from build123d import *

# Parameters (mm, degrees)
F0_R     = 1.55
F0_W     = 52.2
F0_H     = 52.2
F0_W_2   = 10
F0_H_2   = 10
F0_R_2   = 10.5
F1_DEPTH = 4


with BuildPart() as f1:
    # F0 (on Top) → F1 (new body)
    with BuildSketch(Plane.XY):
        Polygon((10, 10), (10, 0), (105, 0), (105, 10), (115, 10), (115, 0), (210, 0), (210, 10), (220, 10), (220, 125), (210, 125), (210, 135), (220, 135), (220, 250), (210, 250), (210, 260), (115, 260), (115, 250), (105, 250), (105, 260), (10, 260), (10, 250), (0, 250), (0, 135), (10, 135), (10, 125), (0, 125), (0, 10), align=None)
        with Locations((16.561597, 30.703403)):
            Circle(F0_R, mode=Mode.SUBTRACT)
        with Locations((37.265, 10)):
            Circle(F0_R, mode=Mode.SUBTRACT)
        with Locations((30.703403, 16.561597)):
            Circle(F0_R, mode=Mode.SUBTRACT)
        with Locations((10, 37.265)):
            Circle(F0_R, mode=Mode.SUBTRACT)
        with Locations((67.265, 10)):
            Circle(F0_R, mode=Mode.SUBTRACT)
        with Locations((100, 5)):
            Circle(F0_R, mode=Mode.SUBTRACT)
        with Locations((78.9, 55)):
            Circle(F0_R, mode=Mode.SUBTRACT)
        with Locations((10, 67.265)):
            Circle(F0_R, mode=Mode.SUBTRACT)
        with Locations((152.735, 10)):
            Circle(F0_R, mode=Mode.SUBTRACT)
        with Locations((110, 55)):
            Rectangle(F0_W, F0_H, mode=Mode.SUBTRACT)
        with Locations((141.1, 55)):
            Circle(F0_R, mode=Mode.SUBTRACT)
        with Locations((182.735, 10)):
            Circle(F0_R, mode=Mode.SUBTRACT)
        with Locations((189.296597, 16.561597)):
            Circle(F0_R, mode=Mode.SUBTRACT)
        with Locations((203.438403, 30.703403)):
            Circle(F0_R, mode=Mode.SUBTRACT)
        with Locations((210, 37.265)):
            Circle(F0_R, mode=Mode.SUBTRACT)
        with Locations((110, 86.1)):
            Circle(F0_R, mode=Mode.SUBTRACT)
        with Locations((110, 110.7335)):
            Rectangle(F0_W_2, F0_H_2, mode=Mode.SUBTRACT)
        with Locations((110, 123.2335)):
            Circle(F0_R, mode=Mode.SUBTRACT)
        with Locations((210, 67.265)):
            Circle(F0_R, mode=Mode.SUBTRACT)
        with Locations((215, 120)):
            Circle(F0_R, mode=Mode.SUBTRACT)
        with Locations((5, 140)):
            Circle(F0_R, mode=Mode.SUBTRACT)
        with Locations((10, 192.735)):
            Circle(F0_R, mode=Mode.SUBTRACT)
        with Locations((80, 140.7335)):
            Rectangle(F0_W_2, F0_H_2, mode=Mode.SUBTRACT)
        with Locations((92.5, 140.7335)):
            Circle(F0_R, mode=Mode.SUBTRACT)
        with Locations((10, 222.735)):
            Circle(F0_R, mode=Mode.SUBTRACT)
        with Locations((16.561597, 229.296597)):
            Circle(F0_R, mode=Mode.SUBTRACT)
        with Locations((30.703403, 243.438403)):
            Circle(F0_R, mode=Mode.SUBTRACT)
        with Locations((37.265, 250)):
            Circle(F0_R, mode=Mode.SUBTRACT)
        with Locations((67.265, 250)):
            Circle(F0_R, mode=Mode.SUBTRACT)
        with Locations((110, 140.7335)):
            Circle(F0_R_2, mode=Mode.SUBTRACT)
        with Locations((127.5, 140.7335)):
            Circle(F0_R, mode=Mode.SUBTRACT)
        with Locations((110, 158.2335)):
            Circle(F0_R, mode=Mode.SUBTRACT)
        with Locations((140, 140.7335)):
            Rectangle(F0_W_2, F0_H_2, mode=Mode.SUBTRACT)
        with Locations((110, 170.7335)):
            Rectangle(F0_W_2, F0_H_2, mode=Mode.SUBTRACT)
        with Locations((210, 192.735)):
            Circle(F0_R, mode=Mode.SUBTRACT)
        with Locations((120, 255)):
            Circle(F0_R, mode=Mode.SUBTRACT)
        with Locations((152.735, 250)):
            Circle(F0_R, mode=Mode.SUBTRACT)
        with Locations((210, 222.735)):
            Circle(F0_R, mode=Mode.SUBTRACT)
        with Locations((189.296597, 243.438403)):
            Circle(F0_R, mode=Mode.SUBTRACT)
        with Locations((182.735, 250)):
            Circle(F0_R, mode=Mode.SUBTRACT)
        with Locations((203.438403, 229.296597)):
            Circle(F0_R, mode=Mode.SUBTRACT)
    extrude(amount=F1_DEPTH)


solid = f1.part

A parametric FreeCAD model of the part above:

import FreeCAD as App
import Part
import Sketcher


def add_polygon(sketch, points):
    """Adds a closed chain of lines whose ends are joined by coincident constraints."""
    first, n = sketch.GeometryCount, len(points)
    for a, b in zip(points, points[1:] + points[:1]):
        sketch.addGeometry(Part.LineSegment(App.Vector(*a, 0), App.Vector(*b, 0)), False)
    for i in range(n):
        sketch.addConstraint(Sketcher.Constraint("Coincident", first + i, 2, first + (i + 1) % n, 1))

doc = App.newDocument("Part")
body = doc.addObject("PartDesign::Body", "Body")

# Sketch on XY plane
sketch1 = body.newObject("Sketcher::SketchObject", "Sketch")
sketch1.AttachmentSupport = (doc.getObject("XY_Plane"), [""])
sketch1.MapMode = "FlatFace"
add_polygon(sketch1, [(10, 10), (10, 0), (105, 0), (105, 10), (115, 10), (115, 0), (210, 0), (210, 10), (220, 10), (220, 125), (210, 125), (210, 135), (220, 135), (220, 250), (210, 250), (210, 260), (115, 260), (115, 250), (105, 250), (105, 260), (10, 260), (10, 250), (0, 250), (0, 135), (10, 135), (10, 125), (0, 125), (0, 10)])  # lines 0-27
sketch1.addGeometry(Part.Circle(App.Vector(16.6, 30.7, 0), App.Vector(0, 0, 1), 1.6), False)  # 28
sketch1.addGeometry(Part.Circle(App.Vector(37.3, 10, 0), App.Vector(0, 0, 1), 1.6), False)  # 29
sketch1.addGeometry(Part.Circle(App.Vector(30.7, 16.6, 0), App.Vector(0, 0, 1), 1.6), False)  # 30
sketch1.addGeometry(Part.Circle(App.Vector(10, 37.3, 0), App.Vector(0, 0, 1), 1.6), False)  # 31
sketch1.addGeometry(Part.Circle(App.Vector(67.3, 10, 0), App.Vector(0, 0, 1), 1.6), False)  # 32
sketch1.addGeometry(Part.Circle(App.Vector(100, 5, 0), App.Vector(0, 0, 1), 1.6), False)  # 33
sketch1.addGeometry(Part.Circle(App.Vector(78.9, 55, 0), App.Vector(0, 0, 1), 1.6), False)  # 34
sketch1.addGeometry(Part.Circle(App.Vector(10, 67.3, 0), App.Vector(0, 0, 1), 1.6), False)  # 35
sketch1.addGeometry(Part.Circle(App.Vector(152.7, 10, 0), App.Vector(0, 0, 1), 1.6), False)  # 36
add_polygon(sketch1, [(136.1, 28.9), (83.9, 28.9), (83.9, 81.1), (136.1, 81.1)])  # lines 37-40
sketch1.addGeometry(Part.Circle(App.Vector(141.1, 55, 0), App.Vector(0, 0, 1), 1.6), False)  # 41
sketch1.addGeometry(Part.Circle(App.Vector(182.7, 10, 0), App.Vector(0, 0, 1), 1.6), False)  # 42
sketch1.addGeometry(Part.Circle(App.Vector(189.3, 16.6, 0), App.Vector(0, 0, 1), 1.6), False)  # 43
sketch1.addGeometry(Part.Circle(App.Vector(203.4, 30.7, 0), App.Vector(0, 0, 1), 1.6), False)  # 44
sketch1.addGeometry(Part.Circle(App.Vector(210, 37.3, 0), App.Vector(0, 0, 1), 1.6), False)  # 45
sketch1.addGeometry(Part.Circle(App.Vector(110, 86.1, 0), App.Vector(0, 0, 1), 1.6), False)  # 46
add_polygon(sketch1, [(115, 105.7), (105, 105.7), (105, 115.7), (115, 115.7)])  # lines 47-50
sketch1.addGeometry(Part.Circle(App.Vector(110, 123.2, 0), App.Vector(0, 0, 1), 1.6), False)  # 51
sketch1.addGeometry(Part.Circle(App.Vector(210, 67.3, 0), App.Vector(0, 0, 1), 1.6), False)  # 52
sketch1.addGeometry(Part.Circle(App.Vector(215, 120, 0), App.Vector(0, 0, 1), 1.6), False)  # 53
sketch1.addGeometry(Part.Circle(App.Vector(5, 140, 0), App.Vector(0, 0, 1), 1.6), False)  # 54
sketch1.addGeometry(Part.Circle(App.Vector(10, 192.7, 0), App.Vector(0, 0, 1), 1.6), False)  # 55
add_polygon(sketch1, [(85, 135.7), (75, 135.7), (75, 145.7), (85, 145.7)])  # lines 56-59
sketch1.addGeometry(Part.Circle(App.Vector(92.5, 140.7, 0), App.Vector(0, 0, 1), 1.6), False)  # 60
sketch1.addGeometry(Part.Circle(App.Vector(10, 222.7, 0), App.Vector(0, 0, 1), 1.6), False)  # 61
sketch1.addGeometry(Part.Circle(App.Vector(16.6, 229.3, 0), App.Vector(0, 0, 1), 1.6), False)  # 62
sketch1.addGeometry(Part.Circle(App.Vector(30.7, 243.4, 0), App.Vector(0, 0, 1), 1.6), False)  # 63
sketch1.addGeometry(Part.Circle(App.Vector(37.3, 250, 0), App.Vector(0, 0, 1), 1.6), False)  # 64
sketch1.addGeometry(Part.Circle(App.Vector(67.3, 250, 0), App.Vector(0, 0, 1), 1.6), False)  # 65
sketch1.addGeometry(Part.Circle(App.Vector(110, 140.7, 0), App.Vector(0, 0, 1), 10.5), False)  # 66
sketch1.addGeometry(Part.Circle(App.Vector(127.5, 140.7, 0), App.Vector(0, 0, 1), 1.6), False)  # 67
sketch1.addGeometry(Part.Circle(App.Vector(110, 158.2, 0), App.Vector(0, 0, 1), 1.6), False)  # 68
add_polygon(sketch1, [(145, 135.7), (135, 135.7), (135, 145.7), (145, 145.7)])  # lines 69-72
add_polygon(sketch1, [(115, 165.7), (105, 165.7), (105, 175.7), (115, 175.7)])  # lines 73-76
sketch1.addGeometry(Part.Circle(App.Vector(210, 192.7, 0), App.Vector(0, 0, 1), 1.6), False)  # 77
sketch1.addGeometry(Part.Circle(App.Vector(120, 255, 0), App.Vector(0, 0, 1), 1.6), False)  # 78
sketch1.addGeometry(Part.Circle(App.Vector(152.7, 250, 0), App.Vector(0, 0, 1), 1.6), False)  # 79
sketch1.addGeometry(Part.Circle(App.Vector(210, 222.7, 0), App.Vector(0, 0, 1), 1.6), False)  # 80
sketch1.addGeometry(Part.Circle(App.Vector(189.3, 243.4, 0), App.Vector(0, 0, 1), 1.6), False)  # 81
sketch1.addGeometry(Part.Circle(App.Vector(182.7, 250, 0), App.Vector(0, 0, 1), 1.6), False)  # 82
sketch1.addGeometry(Part.Circle(App.Vector(203.4, 229.3, 0), App.Vector(0, 0, 1), 1.6), False)  # 83
sketch1.addConstraint([
    Sketcher.Constraint("Vertical", 0),
    Sketcher.Constraint("Horizontal", 1),
    Sketcher.Constraint("Vertical", 2),
    Sketcher.Constraint("Horizontal", 3),
    Sketcher.Constraint("Vertical", 4),
    Sketcher.Constraint("Horizontal", 5),
    Sketcher.Constraint("Vertical", 6),
    Sketcher.Constraint("Horizontal", 7),
    Sketcher.Constraint("Vertical", 8),
    Sketcher.Constraint("Horizontal", 9),
    Sketcher.Constraint("Vertical", 10),
    Sketcher.Constraint("Horizontal", 11),
    Sketcher.Constraint("Vertical", 12),
    Sketcher.Constraint("Horizontal", 13),
    Sketcher.Constraint("Vertical", 14),
    Sketcher.Constraint("Horizontal", 15),
    Sketcher.Constraint("Vertical", 16),
    Sketcher.Constraint("Horizontal", 17),
    Sketcher.Constraint("Vertical", 18),
    Sketcher.Constraint("Horizontal", 19),
    Sketcher.Constraint("Vertical", 20),
    Sketcher.Constraint("Horizontal", 21),
    Sketcher.Constraint("Vertical", 22),
    Sketcher.Constraint("Horizontal", 23),
    Sketcher.Constraint("Vertical", 24),
    Sketcher.Constraint("Horizontal", 25),
    Sketcher.Constraint("Vertical", 26),
    Sketcher.Constraint("Horizontal", 27),
    Sketcher.Constraint("Horizontal", 37),
    Sketcher.Constraint("Vertical", 38),
    Sketcher.Constraint("Horizontal", 39),
    Sketcher.Constraint("Vertical", 40),
    Sketcher.Constraint("Horizontal", 47),
    Sketcher.Constraint("Vertical", 48),
    Sketcher.Constraint("Horizontal", 49),
    Sketcher.Constraint("Vertical", 50),
    Sketcher.Constraint("Horizontal", 56),
    Sketcher.Constraint("Vertical", 57),
    Sketcher.Constraint("Horizontal", 58),
    Sketcher.Constraint("Vertical", 59),
    Sketcher.Constraint("Horizontal", 69),
    Sketcher.Constraint("Vertical", 70),
    Sketcher.Constraint("Horizontal", 71),
    Sketcher.Constraint("Vertical", 72),
    Sketcher.Constraint("Horizontal", 73),
    Sketcher.Constraint("Vertical", 74),
    Sketcher.Constraint("Horizontal", 75),
    Sketcher.Constraint("Vertical", 76),
    Sketcher.Constraint("Equal", 28, 29),
    Sketcher.Constraint("Equal", 29, 30),
    Sketcher.Constraint("Equal", 30, 31),
    Sketcher.Constraint("Equal", 31, 32),
    Sketcher.Constraint("Equal", 32, 33),
    Sketcher.Constraint("Equal", 33, 34),
    Sketcher.Constraint("Equal", 34, 35),
    Sketcher.Constraint("Equal", 35, 36),
    Sketcher.Constraint("Equal", 36, 41),
    Sketcher.Constraint("Equal", 41, 42),
    Sketcher.Constraint("Equal", 42, 43),
    Sketcher.Constraint("Equal", 43, 44),
    Sketcher.Constraint("Equal", 44, 45),
    Sketcher.Constraint("Equal", 45, 46),
    Sketcher.Constraint("Equal", 46, 51),
    Sketcher.Constraint("Equal", 51, 52),
    Sketcher.Constraint("Equal", 52, 53),
    Sketcher.Constraint("Equal", 53, 54),
    Sketcher.Constraint("Equal", 54, 55),
    Sketcher.Constraint("Equal", 55, 60),
    Sketcher.Constraint("Equal", 60, 61),
    Sketcher.Constraint("Equal", 61, 62),
    Sketcher.Constraint("Equal", 62, 63),
    Sketcher.Constraint("Equal", 63, 64),
    Sketcher.Constraint("Equal", 64, 65),
    Sketcher.Constraint("Equal", 65, 67),
    Sketcher.Constraint("Equal", 67, 68),
    Sketcher.Constraint("Equal", 68, 77),
    Sketcher.Constraint("Equal", 77, 78),
    Sketcher.Constraint("Equal", 78, 79),
    Sketcher.Constraint("Equal", 79, 80),
    Sketcher.Constraint("Equal", 80, 81),
    Sketcher.Constraint("Equal", 81, 82),
    Sketcher.Constraint("Equal", 82, 83),
    Sketcher.Constraint("PointOnObject", 0, 2, -1),
    Sketcher.Constraint("PointOnObject", 4, 2, -1),
    Sketcher.Constraint("PointOnObject", 21, 2, -2),
    Sketcher.Constraint("PointOnObject", 25, 2, -2),
    Sketcher.Constraint("Horizontal", 29, 3, 32, 3),
    Sketcher.Constraint("Horizontal", 32, 3, 36, 3),
    Sketcher.Constraint("Horizontal", 34, 3, 41, 3),
    Sketcher.Constraint("Horizontal", 36, 3, 42, 3),
    Sketcher.Constraint("Horizontal", 30, 3, 43, 3),
    Sketcher.Constraint("Horizontal", 28, 3, 44, 3),
    Sketcher.Constraint("Horizontal", 31, 3, 45, 3),
    Sketcher.Constraint("Horizontal", 35, 3, 52, 3),
    Sketcher.Constraint("Horizontal", 64, 3, 65, 3),
    Sketcher.Constraint("Horizontal", 60, 3, 66, 3),
    Sketcher.Constraint("Horizontal", 66, 3, 67, 3),
    Sketcher.Constraint("Horizontal", 55, 3, 77, 3),
    Sketcher.Constraint("Horizontal", 65, 3, 79, 3),
    Sketcher.Constraint("Horizontal", 61, 3, 80, 3),
    Sketcher.Constraint("Horizontal", 63, 3, 81, 3),
    Sketcher.Constraint("Horizontal", 79, 3, 82, 3),
    Sketcher.Constraint("Horizontal", 62, 3, 83, 3),
    Sketcher.Constraint("Horizontal", 42, 3, 2, 2),
    Sketcher.Constraint("Horizontal", 3, 2, 6, 2),
    Sketcher.Constraint("Horizontal", 82, 3, 12, 2),
    Sketcher.Constraint("Horizontal", 13, 2, 16, 2),
    Sketcher.Constraint("Horizontal", 15, 2, 18, 2),
    Sketcher.Constraint("Horizontal", 17, 2, 20, 2),
    Sketcher.Constraint("Horizontal", 11, 2, 22, 2),
    Sketcher.Constraint("Horizontal", 9, 2, 24, 2),
    Sketcher.Constraint("Horizontal", 7, 2, 26, 2),
    Sketcher.Constraint("Horizontal", 59, 2, 69, 2),
    Sketcher.Constraint("Horizontal", 58, 2, 70, 2),
    Sketcher.Constraint("Vertical", 31, 3, 35, 3),
    Sketcher.Constraint("Vertical", 46, 3, 51, 3),
    Sketcher.Constraint("Vertical", 45, 3, 52, 3),
    Sketcher.Constraint("Vertical", 35, 3, 55, 3),
    Sketcher.Constraint("Vertical", 55, 3, 61, 3),
    Sketcher.Constraint("Vertical", 28, 3, 62, 3),
    Sketcher.Constraint("Vertical", 30, 3, 63, 3),
    Sketcher.Constraint("Vertical", 29, 3, 64, 3),
    Sketcher.Constraint("Vertical", 32, 3, 65, 3),
    Sketcher.Constraint("Vertical", 51, 3, 66, 3),
    Sketcher.Constraint("Vertical", 66, 3, 68, 3),
    Sketcher.Constraint("Vertical", 52, 3, 77, 3),
    Sketcher.Constraint("Vertical", 36, 3, 79, 3),
    Sketcher.Constraint("Vertical", 77, 3, 80, 3),
    Sketcher.Constraint("Vertical", 43, 3, 81, 3),
    Sketcher.Constraint("Vertical", 42, 3, 82, 3),
    Sketcher.Constraint("Vertical", 44, 3, 83, 3),
    Sketcher.Constraint("Vertical", 61, 3, 0, 2),
    Sketcher.Constraint("Vertical", 80, 3, 5, 2),
    Sketcher.Constraint("Vertical", 6, 2, 9, 2),
    Sketcher.Constraint("Vertical", 8, 2, 11, 2),
    Sketcher.Constraint("Vertical", 10, 2, 13, 2),
    Sketcher.Constraint("Vertical", 4, 2, 15, 2),
    Sketcher.Constraint("Vertical", 2, 2, 17, 2),
    Sketcher.Constraint("Vertical", 0, 2, 19, 2),
    Sketcher.Constraint("Vertical", 20, 2, 23, 2),
    Sketcher.Constraint("Vertical", 18, 2, 47, 2),
    Sketcher.Constraint("Vertical", 16, 2, 49, 2),
    Sketcher.Constraint("Vertical", 48, 2, 73, 2),
    Sketcher.Constraint("Vertical", 50, 2, 75, 2),
    Sketcher.Constraint("Equal", 1, 5),
    Sketcher.Constraint("Equal", 3, 7),
    Sketcher.Constraint("Equal", 17, 21),
    Sketcher.Constraint("Equal", 49, 56),
    Sketcher.Constraint("Equal", 58, 69),
    Sketcher.Constraint("Equal", 75, 0),
    Sketcher.Constraint("Equal", 6, 10),
    Sketcher.Constraint("Equal", 8, 12),
    Sketcher.Constraint("Equal", 10, 14),
    Sketcher.Constraint("Equal", 39, 38),
    Sketcher.Constraint("Equal", 24, 48),
    Sketcher.Constraint("Equal", 50, 57),
    Sketcher.Constraint("Equal", 72, 74),
    Sketcher.Constraint("Diameter", 66, 21.0),
    Sketcher.Constraint("Diameter", 28, 3.1),
    Sketcher.Constraint("DistanceX", 1, 1, 1, 2, 95.0),
    Sketcher.Constraint("DistanceX", 3, 1, 3, 2, 10.0),
    Sketcher.Constraint("DistanceY", 8, 1, 8, 2, 115.0),
    Sketcher.Constraint("DistanceX", 37, 2, 37, 1, 52.2),
    Sketcher.Constraint("DistanceX", -1, 1, 33, 3, 100.0),
    Sketcher.Constraint("DistanceY", -1, 1, 33, 3, 5.0),
    Sketcher.Constraint("DistanceY", -1, 1, 34, 3, 55.0),
    Sketcher.Constraint("DistanceX", -1, 1, 46, 3, 110.0),
    Sketcher.Constraint("DistanceX", -1, 1, 53, 3, 215.0),
    Sketcher.Constraint("DistanceY", -1, 1, 53, 3, 120.0),
    Sketcher.Constraint("DistanceX", -1, 1, 54, 3, 5.0),
    Sketcher.Constraint("DistanceY", -1, 1, 54, 3, 140.0),
    Sketcher.Constraint("DistanceX", -1, 1, 78, 3, 120.0),
    Sketcher.Constraint("DistanceY", -1, 1, 78, 3, 255.0),
    Sketcher.Constraint("DistanceX", -1, 1, 56, 2, 75.0),
    Sketcher.Constraint("DistanceX", -1, 1, 69, 2, 135.0),
    Sketcher.Constraint("DistanceX", -1, 1, 34, 3, 78.9),
    Sketcher.Constraint("DistanceX", -1, 1, 41, 3, 141.1),
    Sketcher.Constraint("DistanceY", -1, 1, 46, 3, 86.1),
    Sketcher.Constraint("DistanceX", -1, 1, 60, 3, 92.5),
    Sketcher.Constraint("DistanceX", -1, 1, 67, 3, 127.5),
    Sketcher.Constraint("DistanceX", -1, 1, 37, 2, 83.9),
    Sketcher.Constraint("DistanceY", -1, 1, 37, 2, 28.9),
    Sketcher.Constraint("DistanceX", -1, 1, 29, 3, 37.265),
    Sketcher.Constraint("DistanceY", -1, 1, 31, 3, 37.265),
    Sketcher.Constraint("DistanceX", -1, 1, 32, 3, 67.265),
    Sketcher.Constraint("DistanceY", -1, 1, 35, 3, 67.265),
    Sketcher.Constraint("DistanceX", -1, 1, 36, 3, 152.735),
    Sketcher.Constraint("DistanceX", -1, 1, 42, 3, 182.735),
    Sketcher.Constraint("DistanceY", -1, 1, 55, 3, 192.735),
    Sketcher.Constraint("DistanceY", -1, 1, 61, 3, 222.735),
    Sketcher.Constraint("DistanceY", -1, 1, 51, 3, 123.2335),
    Sketcher.Constraint("DistanceY", -1, 1, 60, 3, 140.7335),
    Sketcher.Constraint("DistanceY", -1, 1, 68, 3, 158.2335),
    Sketcher.Constraint("DistanceY", -1, 1, 47, 2, 105.7335),
    Sketcher.Constraint("DistanceY", -1, 1, 56, 2, 135.7335),
    Sketcher.Constraint("DistanceY", -1, 1, 73, 2, 165.7335),
    Sketcher.Constraint("DistanceX", -1, 1, 28, 3, 16.561597),
    Sketcher.Constraint("DistanceY", -1, 1, 28, 3, 30.703403),
    Sketcher.Constraint("DistanceX", -1, 1, 30, 3, 30.703403),
    Sketcher.Constraint("DistanceY", -1, 1, 30, 3, 16.561597),
    Sketcher.Constraint("DistanceX", -1, 1, 43, 3, 189.296597),
    Sketcher.Constraint("DistanceX", -1, 1, 44, 3, 203.438403),
    Sketcher.Constraint("DistanceY", -1, 1, 62, 3, 229.296597),
    Sketcher.Constraint("DistanceY", -1, 1, 63, 3, 243.438403),
])
pad1 = body.newObject("PartDesign::Pad", "Pad")
pad1.Profile = sketch1
pad1.Length = 4

doc.recompute()
